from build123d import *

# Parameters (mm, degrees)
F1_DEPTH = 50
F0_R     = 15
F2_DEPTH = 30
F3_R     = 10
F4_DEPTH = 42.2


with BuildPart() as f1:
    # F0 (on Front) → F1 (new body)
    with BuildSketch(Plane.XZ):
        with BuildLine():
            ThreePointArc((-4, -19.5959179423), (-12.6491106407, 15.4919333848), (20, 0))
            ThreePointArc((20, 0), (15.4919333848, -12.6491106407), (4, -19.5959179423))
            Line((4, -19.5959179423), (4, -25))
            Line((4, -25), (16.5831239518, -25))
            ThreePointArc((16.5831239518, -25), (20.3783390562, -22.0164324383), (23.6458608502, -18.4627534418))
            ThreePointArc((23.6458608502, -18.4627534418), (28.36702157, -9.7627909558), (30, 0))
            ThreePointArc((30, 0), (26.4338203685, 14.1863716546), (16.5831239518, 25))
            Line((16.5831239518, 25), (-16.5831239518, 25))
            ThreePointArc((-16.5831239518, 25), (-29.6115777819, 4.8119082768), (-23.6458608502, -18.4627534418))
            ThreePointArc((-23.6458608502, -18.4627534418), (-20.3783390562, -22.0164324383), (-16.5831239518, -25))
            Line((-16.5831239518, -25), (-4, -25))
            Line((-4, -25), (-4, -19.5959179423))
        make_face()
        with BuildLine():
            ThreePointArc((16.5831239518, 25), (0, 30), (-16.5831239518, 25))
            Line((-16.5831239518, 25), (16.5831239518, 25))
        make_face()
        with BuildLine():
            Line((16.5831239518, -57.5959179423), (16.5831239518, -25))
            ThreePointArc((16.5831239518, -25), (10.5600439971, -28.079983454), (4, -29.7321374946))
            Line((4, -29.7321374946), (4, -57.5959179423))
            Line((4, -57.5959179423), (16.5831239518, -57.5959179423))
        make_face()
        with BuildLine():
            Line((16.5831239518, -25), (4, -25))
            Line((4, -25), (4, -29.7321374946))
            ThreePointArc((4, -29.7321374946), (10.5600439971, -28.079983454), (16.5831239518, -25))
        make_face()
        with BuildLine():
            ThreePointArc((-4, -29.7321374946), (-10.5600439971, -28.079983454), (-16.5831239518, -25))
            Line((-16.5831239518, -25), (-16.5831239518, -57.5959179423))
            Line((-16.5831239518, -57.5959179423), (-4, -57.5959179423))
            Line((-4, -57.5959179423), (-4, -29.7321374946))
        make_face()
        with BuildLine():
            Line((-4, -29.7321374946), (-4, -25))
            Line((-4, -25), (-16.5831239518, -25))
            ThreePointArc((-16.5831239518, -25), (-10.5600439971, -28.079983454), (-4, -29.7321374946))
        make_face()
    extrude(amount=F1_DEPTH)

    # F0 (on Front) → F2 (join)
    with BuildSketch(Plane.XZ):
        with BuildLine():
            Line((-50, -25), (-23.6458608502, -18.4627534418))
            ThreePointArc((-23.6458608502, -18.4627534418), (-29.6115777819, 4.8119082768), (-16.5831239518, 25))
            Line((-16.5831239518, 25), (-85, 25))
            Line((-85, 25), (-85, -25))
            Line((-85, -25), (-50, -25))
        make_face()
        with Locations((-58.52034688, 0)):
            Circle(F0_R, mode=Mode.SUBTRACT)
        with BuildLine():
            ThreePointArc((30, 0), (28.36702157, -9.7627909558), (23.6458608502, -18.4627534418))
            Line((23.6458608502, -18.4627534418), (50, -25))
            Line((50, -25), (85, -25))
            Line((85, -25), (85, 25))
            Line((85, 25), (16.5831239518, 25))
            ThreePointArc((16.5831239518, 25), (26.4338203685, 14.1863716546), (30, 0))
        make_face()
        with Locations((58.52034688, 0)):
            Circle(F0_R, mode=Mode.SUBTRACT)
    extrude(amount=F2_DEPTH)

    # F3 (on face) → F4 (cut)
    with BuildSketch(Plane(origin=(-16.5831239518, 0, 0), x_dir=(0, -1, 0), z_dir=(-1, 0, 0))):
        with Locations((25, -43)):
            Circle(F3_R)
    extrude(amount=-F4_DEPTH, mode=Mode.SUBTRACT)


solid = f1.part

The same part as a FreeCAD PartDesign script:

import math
import FreeCAD as App
import Part
import Sketcher
from FreeCAD import Vector
Q = App.Units.Quantity

doc = App.newDocument("Part")
body = doc.addObject("PartDesign::Body", "Body")

# Sketch on XZ plane
sketch1 = body.newObject("Sketcher::SketchObject", "Sketch")
sketch1.AttachmentSupport = (doc.getObject("XZ_Plane"), [""])
sketch1.MapMode = "FlatFace"
sketch1.addGeometry([
    Part.ArcOfCircle(Part.Circle(Vector(0, 0, 0), Vector(0, 0, 1), 20), math.radians(0), math.radians(258.463041)),  # 0
    Part.ArcOfCircle(Part.Circle(Vector(0, 0, 0), Vector(0, 0, 1), 20), math.radians(-78.463041), math.radians(0)),  # 1
    Part.LineSegment(Vector(4, -19.595918, 0), Vector(4, -57.595918, 0)),  # 2
    Part.LineSegment(Vector(4, -57.595918, 0), Vector(16.583124, -57.595918, 0)),  # 3
    Part.LineSegment(Vector(16.583124, -57.595918, 0), Vector(16.583124, -25, 0)),  # 4
    Part.ArcOfCircle(Part.Circle(Vector(0, 0, 0), Vector(0, 0, 1), 30), math.radians(-56.44269), math.radians(-37.982816)),  # 5
    Part.ArcOfCircle(Part.Circle(Vector(0, 0, 0), Vector(0, 0, 1), 30), math.radians(-37.982816), math.radians(0)),  # 6
    Part.ArcOfCircle(Part.Circle(Vector(0, 0, 0), Vector(0, 0, 1), 30), math.radians(0), math.radians(56.44269)),  # 7
    Part.ArcOfCircle(Part.Circle(Vector(0, 0, 0), Vector(0, 0, 1), 30), math.radians(56.44269), math.radians(123.55731)),  # 8
    Part.ArcOfCircle(Part.Circle(Vector(0, 0, 0), Vector(0, 0, 1), 30), math.radians(123.55731), math.radians(217.982816)),  # 9
    Part.ArcOfCircle(Part.Circle(Vector(0, 0, 0), Vector(0, 0, 1), 30), math.radians(-142.017184), math.radians(-123.55731)),  # 10
    Part.LineSegment(Vector(-16.583124, -25, 0), Vector(-16.583124, -57.595918, 0)),  # 11
    Part.LineSegment(Vector(-16.583124, -57.595918, 0), Vector(-4, -57.595918, 0)),  # 12
    Part.LineSegment(Vector(-4, -57.595918, 0), Vector(-4, -19.595918, 0)),  # 13
], False)
sketch1.addConstraint([
    Sketcher.Constraint("Tangent", 0, 1, 1, 2),
    Sketcher.Constraint("Coincident", 1, 1, 2, 1),
    Sketcher.Constraint("Coincident", 2, 2, 3, 1),
    Sketcher.Constraint("Coincident", 3, 2, 4, 1),
    Sketcher.Constraint("Coincident", 4, 2, 5, 1),
    Sketcher.Constraint("Tangent", 5, 2, 6, 1),
    Sketcher.Constraint("Tangent", 6, 2, 7, 1),
    Sketcher.Constraint("Tangent", 7, 2, 8, 1),
    Sketcher.Constraint("Tangent", 8, 2, 9, 1),
    Sketcher.Constraint("Tangent", 9, 2, 10, 1),
    Sketcher.Constraint("Coincident", 10, 2, 11, 1),
    Sketcher.Constraint("Coincident", 11, 2, 12, 1),
    Sketcher.Constraint("Coincident", 12, 2, 13, 1),
    Sketcher.Constraint("Coincident", 13, 2, 0, 2),
    Sketcher.Constraint("Vertical", 2),
    Sketcher.Constraint("Horizontal", 3),
    Sketcher.Constraint("Vertical", 4),
    Sketcher.Constraint("Vertical", 11),
    Sketcher.Constraint("Horizontal", 12),
    Sketcher.Constraint("Vertical", 13),
    Sketcher.Constraint("Coincident", 0, 3, -1, 1),
    Sketcher.Constraint("Coincident", 5, 3, -1, 1),
    Sketcher.Constraint("Coincident", 7, 3, -1, 1),
    Sketcher.Constraint("Coincident", 9, 3, -1, 1),
    Sketcher.Constraint("Equal", 0, 1),
    Sketcher.Constraint("Equal", 9, 10),
    Sketcher.Constraint("Symmetric", 3, 2, 11, 2, -2),
    Sketcher.Constraint("PointOnObject", 0, 1, -1),
    Sketcher.Constraint("PointOnObject", 6, 2, -1),
    Sketcher.Constraint("Horizontal", 7, 2, 8, 2),
    Sketcher.Constraint("Horizontal", 5, 2, 9, 2),
    Sketcher.Constraint("Horizontal", 1, 1, 13, 2),
    Sketcher.Constraint("Vertical", 4, 2, 7, 2),
    Sketcher.Constraint("Radius", 0, Q("20 mm")),
    Sketcher.Constraint("Radius", 5, Q("30 mm")),
    Sketcher.Constraint("DistanceY", 2, 2, 2, 1, Q("38 mm")),
    Sketcher.Constraint("DistanceX", -1, 1, 1, 1, Q("4 mm")),
    Sketcher.Constraint("DistanceY", 4, 2, -1, 1, Q("25 mm")),
    Sketcher.Constraint("DistanceX", -1, 1, 5, 2, Q("23.645861 mm")),
])
pad1 = body.newObject("PartDesign::Pad", "Pad")
pad1.Profile = sketch1
pad1.Length = 50

# Sketch on XZ plane
sketch2 = body.newObject("Sketcher::SketchObject", "Sketch001")
sketch2.AttachmentSupport = (doc.getObject("XZ_Plane"), [""])
sketch2.MapMode = "FlatFace"
sketch2.addGeometry([
    Part.LineSegment(Vector(-50, -25, 0), Vector(-23.645861, -18.462753, 0)),  # 0
    Part.ArcOfCircle(Part.Circle(Vector(0, 0, 0), Vector(0, 0, 1), 30), math.radians(123.55731), math.radians(217.982816)),  # 1
    Part.LineSegment(Vector(-16.583124, 25, 0), Vector(-85, 25, 0)),  # 2
    Part.LineSegment(Vector(-85, 25, 0), Vector(-85, -25, 0)),  # 3
    Part.LineSegment(Vector(-85, -25, 0), Vector(-50, -25, 0)),  # 4
    Part.Circle(Vector(-58.520347, 0, 0), Vector(0, 0, 1), 15),  # 5
    Part.ArcOfCircle(Part.Circle(Vector(0, 0, 0), Vector(0, 0, 1), 30), math.radians(-37.982816), math.radians(0)),  # 6
    Part.LineSegment(Vector(23.645861, -18.462753, 0), Vector(50, -25, 0)),  # 7
    Part.LineSegment(Vector(50, -25, 0), Vector(85, -25, 0)),  # 8
    Part.LineSegment(Vector(85, -25, 0), Vector(85, 25, 0)),  # 9
    Part.LineSegment(Vector(85, 25, 0), Vector(16.583124, 25, 0)),  # 10
    Part.ArcOfCircle(Part.Circle(Vector(0, 0, 0), Vector(0, 0, 1), 30), math.radians(0), math.radians(56.44269)),  # 11
    Part.Circle(Vector(58.520347, 0, 0), Vector(0, 0, 1), 15),  # 12
], False)
sketch2.addConstraint([
    Sketcher.Constraint("Coincident", 0, 2, 1, 2),
    Sketcher.Constraint("Coincident", 1, 1, 2, 1),
    Sketcher.Constraint("Coincident", 2, 2, 3, 1),
    Sketcher.Constraint("Coincident", 3, 2, 4, 1),
    Sketcher.Constraint("Coincident", 4, 2, 0, 1),
    Sketcher.Constraint("Coincident", 6, 1, 7, 1),
    Sketcher.Constraint("Coincident", 7, 2, 8, 1),
    Sketcher.Constraint("Coincident", 8, 2, 9, 1),
    Sketcher.Constraint("Coincident", 9, 2, 10, 1),
    Sketcher.Constraint("Coincident", 10, 2, 11, 2),
    Sketcher.Constraint("Tangent", 11, 1, 6, 2),
    Sketcher.Constraint("Horizontal", 2),
    Sketcher.Constraint("Vertical", 3),
    Sketcher.Constraint("Horizontal", 4),
    Sketcher.Constraint("Horizontal", 8),
    Sketcher.Constraint("Vertical", 9),
    Sketcher.Constraint("Horizontal", 10),
    Sketcher.Constraint("Coincident", 1, 3, -1, 1),
    Sketcher.Constraint("Coincident", 6, 3, -1, 1),
    Sketcher.Constraint("Equal", 1, 6),
    Sketcher.Constraint("Equal", 6, 11),
    Sketcher.Constraint("Equal", 5, 12),
    Sketcher.Constraint("Symmetric", 5, 3, 12, 3, -1, 1),
    Sketcher.Constraint("Symmetric", 2, 2, 8, 2, -1, 1),
    Sketcher.Constraint("Symmetric", 4, 2, 7, 2, -2),
    Sketcher.Constraint("PointOnObject", 5, 3, -1),
    Sketcher.Constraint("PointOnObject", 11, 1, -1),
    Sketcher.Constraint("Horizontal", 0, 2, 6, 1),
    Sketcher.Constraint("Horizontal", 2, 2, 9, 2),
    Sketcher.Constraint("Diameter", 5, Q("30 mm")),
    Sketcher.Constraint("Radius", 1, Q("30 mm")),
    Sketcher.Constraint("DistanceX", 4, 1, 4, 2, Q("35 mm")),
    Sketcher.Constraint("DistanceY", 3, 2, 3, 1, Q("50 mm")),
    Sketcher.Constraint("DistanceX", 2, 2, -1, 1, Q("85 mm")),
    Sketcher.Constraint("Distance", 0, Q("27.152831 mm")),
    Sketcher.Constraint("DistanceX", 5, 3, -1, 1, Q("58.520347 mm")),
])
pad2 = body.newObject("PartDesign::Pad", "Pad001")
pad2.Profile = sketch2
pad2.Length = 30

# Sketch on YZ plane
sketch3 = body.newObject("Sketcher::SketchObject", "Sketch002")
sketch3.AttachmentSupport = (doc.getObject("YZ_Plane"), [""])
sketch3.MapMode = "FlatFace"
sketch3.AttachmentOffset = App.Placement(Vector(0, 0, -16.583124), App.Rotation())
sketch3.addGeometry(Part.Circle(Vector(-25, -43, 0), Vector(0, 0, 1), 10), False)
sketch3.addConstraint([
    Sketcher.Constraint("Diameter", 0, Q("20 mm")),
    Sketcher.Constraint("DistanceX", 0, 3, -1, 1, Q("25 mm")),
    Sketcher.Constraint("DistanceY", 0, 3, -1, 1, Q("43 mm")),
])
pocket1 = body.newObject("PartDesign::Pocket", "Pocket")
pocket1.Profile = sketch3
pocket1.Length = 42.2
pocket1.Reversed = True

doc.recompute()
